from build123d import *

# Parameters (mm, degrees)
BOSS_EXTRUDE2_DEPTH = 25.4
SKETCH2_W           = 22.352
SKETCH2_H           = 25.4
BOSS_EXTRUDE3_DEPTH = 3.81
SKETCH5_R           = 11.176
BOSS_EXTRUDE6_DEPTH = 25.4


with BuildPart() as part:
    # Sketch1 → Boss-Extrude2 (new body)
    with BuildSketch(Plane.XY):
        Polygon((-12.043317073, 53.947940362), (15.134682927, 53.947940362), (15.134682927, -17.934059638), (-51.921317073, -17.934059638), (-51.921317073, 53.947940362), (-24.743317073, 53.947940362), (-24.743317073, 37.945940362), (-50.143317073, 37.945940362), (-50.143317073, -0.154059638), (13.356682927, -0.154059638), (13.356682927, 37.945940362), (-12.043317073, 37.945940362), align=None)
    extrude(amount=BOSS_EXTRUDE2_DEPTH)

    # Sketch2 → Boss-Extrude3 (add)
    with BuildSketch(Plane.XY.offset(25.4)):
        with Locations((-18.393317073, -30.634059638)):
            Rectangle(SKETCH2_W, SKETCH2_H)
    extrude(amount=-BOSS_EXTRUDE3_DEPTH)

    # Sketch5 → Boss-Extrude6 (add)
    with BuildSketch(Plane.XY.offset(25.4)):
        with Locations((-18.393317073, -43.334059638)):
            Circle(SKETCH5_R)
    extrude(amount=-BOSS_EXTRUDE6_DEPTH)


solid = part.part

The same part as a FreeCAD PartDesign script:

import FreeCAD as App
import Part
import Sketcher
Q = App.Units.Quantity


def add_polygon(sketch, points):
    """Adds a closed chain of lines whose ends are joined by coincident constraints."""
    first, n = sketch.GeometryCount, len(points)
    for a, b in zip(points, points[1:] + points[:1]):
        sketch.addGeometry(Part.LineSegment(App.Vector(*a, 0), App.Vector(*b, 0)), False)
    for i in range(n):
        sketch.addConstraint(Sketcher.Constraint("Coincident", first + i, 2, first + (i + 1) % n, 1))

doc = App.newDocument("Part")
body = doc.addObject("PartDesign::Body", "Body")

# Sketch on XY plane
sketch1 = body.newObject("Sketcher::SketchObject", "Sketch")
sketch1.AttachmentSupport = (doc.getObject("XY_Plane"), [""])
sketch1.MapMode = "FlatFace"
add_polygon(sketch1, [(15.134683, 53.94794), (-12.043317, 53.94794), (-12.043317, 37.94594), (13.356683, 37.94594), (13.356683, -0.15406), (-50.143317, -0.15406), (-50.143317, 37.94594), (-24.743317, 37.94594), (-24.743317, 53.94794), (-51.921317, 53.94794), (-51.921317, -17.93406), (15.134683, -17.93406)])  # lines 0-11
sketch1.addConstraint(Sketcher.Constraint("Horizontal", 0))
sketch1.addConstraint(Sketcher.Constraint("Vertical", 1))
sketch1.addConstraint(Sketcher.Constraint("Horizontal", 2))
sketch1.addConstraint(Sketcher.Constraint("Vertical", 3))
sketch1.addConstraint(Sketcher.Constraint("Horizontal", 4))
sketch1.addConstraint(Sketcher.Constraint("Vertical", 5))
sketch1.addConstraint(Sketcher.Constraint("Horizontal", 6))
sketch1.addConstraint(Sketcher.Constraint("Vertical", 7))
sketch1.addConstraint(Sketcher.Constraint("Horizontal", 8))
sketch1.addConstraint(Sketcher.Constraint("Vertical", 9))
sketch1.addConstraint(Sketcher.Constraint("Horizontal", 10))
sketch1.addConstraint(Sketcher.Constraint("Vertical", 11))
sketch1.addConstraint(Sketcher.Constraint("Horizontal", 2, 2, 5, 2))
sketch1.addConstraint(Sketcher.Constraint("Horizontal", 0, 2, 7, 2))
sketch1.addConstraint(Sketcher.Constraint("Equal", 2, 6))
sketch1.addConstraint(Sketcher.Constraint("Equal", 0, 8))
sketch1.addConstraint(Sketcher.Constraint("DistanceX", 2, 1, 2, 2, Q("1 in")))
sketch1.addConstraint(Sketcher.Constraint("DistanceX", 4, 2, 4, 1, Q("2.5 in")))
sketch1.addConstraint(Sketcher.Constraint("DistanceY", 3, 2, 3, 1, Q("1.5 in")))
sketch1.addConstraint(Sketcher.Constraint("DistanceX", 0, 2, 0, 1, Q("1.07 in")))
sketch1.addConstraint(Sketcher.Constraint("DistanceY", 1, 2, 1, 1, Q("0.63 in")))
sketch1.addConstraint(Sketcher.Constraint("DistanceY", 9, 2, 9, 1, Q("2.83 in")))
sketch1.addConstraint(Sketcher.Constraint("DistanceY", -1, 1, 0, 2, Q("53.94794 mm")))
sketch1.addConstraint(Sketcher.Constraint("DistanceX", 0, 2, -1, 1, Q("12.043317 mm")))
pad1 = body.newObject("PartDesign::Pad", "Pad")
pad1.Profile = sketch1
pad1.Length = Q("1 in")

# Sketch on XY plane
sketch2 = body.newObject("Sketcher::SketchObject", "Sketch001")
sketch2.AttachmentSupport = (doc.getObject("XY_Plane"), [""])
sketch2.MapMode = "FlatFace"
sketch2.AttachmentOffset = App.Placement(App.Vector(0, 0, 1 * 25.4), App.Rotation())
add_polygon(sketch2, [(-29.569317, -17.93406), (-29.569317, -43.33406), (-7.217317, -43.33406), (-7.217317, -17.93406)])  # lines 0-3
sketch2.addConstraint(Sketcher.Constraint("Vertical", 0))
sketch2.addConstraint(Sketcher.Constraint("Horizontal", 1))
sketch2.addConstraint(Sketcher.Constraint("Vertical", 2))
sketch2.addConstraint(Sketcher.Constraint("Horizontal", 3))
sketch2.addConstraint(Sketcher.Constraint("DistanceY", 0, 2, 0, 1, Q("1 in")))
sketch2.addConstraint(Sketcher.Constraint("DistanceX", 1, 1, 1, 2, Q("0.88 in")))
sketch2.addConstraint(Sketcher.Constraint("DistanceY", 0, 2, -1, 1, Q("43.33406 mm")))
sketch2.addConstraint(Sketcher.Constraint("DistanceX", 0, 2, -1, 1, Q("29.569317 mm")))
pad2 = body.newObject("PartDesign::Pad", "Pad001")
pad2.Profile = sketch2
pad2.Length = Q("0.15 in")
pad2.Reversed = True

# Sketch on XY plane
sketch3 = body.newObject("Sketcher::SketchObject", "Sketch002")
sketch3.AttachmentSupport = (doc.getObject("XY_Plane"), [""])
sketch3.MapMode = "FlatFace"
sketch3.AttachmentOffset = App.Placement(App.Vector(0, 0, 1 * 25.4), App.Rotation())
sketch3.addGeometry(Part.Circle(App.Vector(-18.393317, -43.33406, 0), App.Vector(0, 0, 1), 11.176), False)
sketch3.addConstraint(Sketcher.Constraint("Diameter", 0, Q("0.88 in")))
sketch3.addConstraint(Sketcher.Constraint("DistanceY", 0, 3, -1, 1, Q("43.33406 mm")))
sketch3.addConstraint(Sketcher.Constraint("DistanceX", 0, 3, -1, 1, Q("18.393317 mm")))
pad3 = body.newObject("PartDesign::Pad", "Pad002")
pad3.Profile = sketch3
pad3.Length = Q("1 in")
pad3.Reversed = True

doc.recompute()
